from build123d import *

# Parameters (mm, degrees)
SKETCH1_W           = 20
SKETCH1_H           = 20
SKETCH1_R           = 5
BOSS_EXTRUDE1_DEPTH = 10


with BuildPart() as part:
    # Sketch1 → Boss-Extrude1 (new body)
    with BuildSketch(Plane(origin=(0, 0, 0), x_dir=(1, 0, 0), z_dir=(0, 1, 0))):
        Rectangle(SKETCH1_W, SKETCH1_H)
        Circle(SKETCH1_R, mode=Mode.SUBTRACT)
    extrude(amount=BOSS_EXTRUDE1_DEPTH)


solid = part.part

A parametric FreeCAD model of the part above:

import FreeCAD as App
import Part
import Sketcher
Q = App.Units.Quantity


def add_polygon(sketch, points):
    """Adds a closed chain of lines whose ends are joined by coincident constraints."""
    first, n = sketch.GeometryCount, len(points)
    for a, b in zip(points, points[1:] + points[:1]):
        sketch.addGeometry(Part.LineSegment(App.Vector(*a, 0), App.Vector(*b, 0)), False)
    for i in range(n):
        sketch.addConstraint(Sketcher.Constraint("Coincident", first + i, 2, first + (i + 1) % n, 1))

doc = App.newDocument("Part")
body = doc.addObject("PartDesign::Body", "Body")

# Sketch on XZ plane
sketch1 = body.newObject("Sketcher::SketchObject", "Sketch")
sketch1.AttachmentSupport = (doc.getObject("XZ_Plane"), [""])
sketch1.MapMode = "FlatFace"
add_polygon(sketch1, [(-10, -10), (-10, 10), (10, 10), (10, -10)])  # lines 0-3
sketch1.addGeometry(Part.Circle(App.Vector(0, 0, 0), App.Vector(0, 0, 1), 5), False)  # 4
sketch1.addConstraint(Sketcher.Constraint("Vertical", 0))
sketch1.addConstraint(Sketcher.Constraint("Horizontal", 1))
sketch1.addConstraint(Sketcher.Constraint("Vertical", 2))
sketch1.addConstraint(Sketcher.Constraint("Horizontal", 3))
sketch1.addConstraint(Sketcher.Constraint("Coincident", 4, 3, -1, 1))
sketch1.addConstraint(Sketcher.Constraint("Symmetric", 0, 2, 2, 2, -1, 1))
sketch1.addConstraint(Sketcher.Constraint("Equal", 3, 0))
sketch1.addConstraint(Sketcher.Constraint("Diameter", 4, Q("10 mm")))
sketch1.addConstraint(Sketcher.Constraint("DistanceX", 1, 1, 1, 2, Q("20 mm")))
pad1 = body.newObject("PartDesign::Pad", "Pad")
pad1.Profile = sketch1
pad1.Length = 10
pad1.Reversed = True

doc.recompute()
